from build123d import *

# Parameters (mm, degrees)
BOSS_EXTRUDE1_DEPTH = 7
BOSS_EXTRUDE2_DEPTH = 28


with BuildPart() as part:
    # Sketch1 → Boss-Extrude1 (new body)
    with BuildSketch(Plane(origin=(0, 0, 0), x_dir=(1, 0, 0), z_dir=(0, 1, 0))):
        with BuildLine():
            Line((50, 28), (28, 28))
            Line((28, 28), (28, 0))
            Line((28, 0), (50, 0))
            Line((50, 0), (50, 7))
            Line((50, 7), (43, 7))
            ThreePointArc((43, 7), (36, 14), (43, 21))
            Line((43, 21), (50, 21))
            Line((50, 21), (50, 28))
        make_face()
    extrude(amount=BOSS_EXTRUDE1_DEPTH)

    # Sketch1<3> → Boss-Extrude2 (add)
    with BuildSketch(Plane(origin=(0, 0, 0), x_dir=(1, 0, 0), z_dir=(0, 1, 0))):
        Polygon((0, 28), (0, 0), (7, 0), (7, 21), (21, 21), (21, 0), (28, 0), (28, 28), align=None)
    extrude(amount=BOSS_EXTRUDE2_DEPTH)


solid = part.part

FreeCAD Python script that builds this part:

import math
import FreeCAD as App
import Part
import Sketcher
Q = App.Units.Quantity


def add_polygon(sketch, points):
    """Adds a closed chain of lines whose ends are joined by coincident constraints."""
    first, n = sketch.GeometryCount, len(points)
    for a, b in zip(points, points[1:] + points[:1]):
        sketch.addGeometry(Part.LineSegment(App.Vector(*a, 0), App.Vector(*b, 0)), False)
    for i in range(n):
        sketch.addConstraint(Sketcher.Constraint("Coincident", first + i, 2, first + (i + 1) % n, 1))

doc = App.newDocument("Part")
body = doc.addObject("PartDesign::Body", "Body")

# Sketch on XZ plane
sketch1 = doc.addObject("Sketcher::SketchObject", "Sketch")
body.addObject(sketch1)
sketch1.AttachmentSupport = (doc.XZ_Plane, [""])
sketch1.MapMode = "FlatFace"
sketch1.addGeometry([
    Part.LineSegment(App.Vector(50, -28, 0), App.Vector(28, -28, 0)),  # 0
    Part.LineSegment(App.Vector(28, -28, 0), App.Vector(28, 0, 0)),  # 1
    Part.LineSegment(App.Vector(28, 0, 0), App.Vector(50, 0, 0)),  # 2
    Part.LineSegment(App.Vector(50, 0, 0), App.Vector(50, -7, 0)),  # 3
    Part.LineSegment(App.Vector(50, -7, 0), App.Vector(43, -7, 0)),  # 4
    Part.ArcOfCircle(Part.Circle(App.Vector(43, -14, 0), App.Vector(0, 0, 1), 7), math.radians(90), math.radians(270)),  # 5
    Part.LineSegment(App.Vector(43, -21, 0), App.Vector(50, -21, 0)),  # 6
    Part.LineSegment(App.Vector(50, -21, 0), App.Vector(50, -28, 0)),  # 7
], False)
sketch1.addConstraint([
    Sketcher.Constraint("Coincident", 0, 2, 1, 1),
    Sketcher.Constraint("Coincident", 1, 2, 2, 1),
    Sketcher.Constraint("Coincident", 2, 2, 3, 1),
    Sketcher.Constraint("Coincident", 3, 2, 4, 1),
    Sketcher.Constraint("Tangent", 4, 2, 5, 1),
    Sketcher.Constraint("Tangent", 5, 2, 6, 1),
    Sketcher.Constraint("Coincident", 6, 2, 7, 1),
    Sketcher.Constraint("Coincident", 7, 2, 0, 1),
    Sketcher.Constraint("Horizontal", 0),
    Sketcher.Constraint("Vertical", 1),
    Sketcher.Constraint("Horizontal", 2),
    Sketcher.Constraint("Vertical", 3),
    Sketcher.Constraint("Horizontal", 4),
    Sketcher.Constraint("Horizontal", 6),
    Sketcher.Constraint("Vertical", 7),
    Sketcher.Constraint("PointOnObject", 1, 2, -1),
    Sketcher.Constraint("Vertical", 3, 2, 6, 2),
    Sketcher.Constraint("Equal", 6, 3),
    Sketcher.Constraint("Equal", 3, 7),
    Sketcher.Constraint("Radius", 5, Q("7 mm")),
    Sketcher.Constraint("DistanceX", 0, 2, 0, 1, Q("22 mm")),
    Sketcher.Constraint("DistanceX", 4, 2, 4, 1, Q("7 mm")),
    Sketcher.Constraint("DistanceX", -1, 1, 5, 3, Q("43 mm")),
])
pad1 = doc.addObject("PartDesign::Pad", "Pad")
body.addObject(pad1)
pad1.Profile = sketch1
pad1.Length = 7
pad1.Reversed = True

# Sketch on XZ plane
sketch2 = doc.addObject("Sketcher::SketchObject", "Sketch001")
body.addObject(sketch2)
sketch2.AttachmentSupport = (doc.XZ_Plane, [""])
sketch2.MapMode = "FlatFace"
add_polygon(sketch2, [(0, -28), (0, 0), (7, 0), (7, -21), (21, -21), (21, 0), (28, 0), (28, -28)])  # lines 0-7
sketch2.addConstraint([
    Sketcher.Constraint("Vertical", 0),
    Sketcher.Constraint("Horizontal", 1),
    Sketcher.Constraint("Vertical", 2),
    Sketcher.Constraint("Horizontal", 3),
    Sketcher.Constraint("Vertical", 4),
    Sketcher.Constraint("Horizontal", 5),
    Sketcher.Constraint("Vertical", 6),
    Sketcher.Constraint("Horizontal", 7),
    Sketcher.Constraint("Coincident", 0, 2, -1, 1),
    Sketcher.Constraint("PointOnObject", 4, 2, -1),
    Sketcher.Constraint("Equal", 1, 5),
    Sketcher.Constraint("Equal", 7, 0),
    Sketcher.Constraint("DistanceX", 1, 1, 1, 2, Q("7 mm")),
    Sketcher.Constraint("DistanceX", 3, 1, 3, 2, Q("14 mm")),
    Sketcher.Constraint("DistanceY", 2, 2, 2, 1, Q("21 mm")),
])
pad2 = doc.addObject("PartDesign::Pad", "Pad001")
body.addObject(pad2)
pad2.Profile = sketch2
pad2.Length = 28
pad2.Reversed = True

doc.recompute()
